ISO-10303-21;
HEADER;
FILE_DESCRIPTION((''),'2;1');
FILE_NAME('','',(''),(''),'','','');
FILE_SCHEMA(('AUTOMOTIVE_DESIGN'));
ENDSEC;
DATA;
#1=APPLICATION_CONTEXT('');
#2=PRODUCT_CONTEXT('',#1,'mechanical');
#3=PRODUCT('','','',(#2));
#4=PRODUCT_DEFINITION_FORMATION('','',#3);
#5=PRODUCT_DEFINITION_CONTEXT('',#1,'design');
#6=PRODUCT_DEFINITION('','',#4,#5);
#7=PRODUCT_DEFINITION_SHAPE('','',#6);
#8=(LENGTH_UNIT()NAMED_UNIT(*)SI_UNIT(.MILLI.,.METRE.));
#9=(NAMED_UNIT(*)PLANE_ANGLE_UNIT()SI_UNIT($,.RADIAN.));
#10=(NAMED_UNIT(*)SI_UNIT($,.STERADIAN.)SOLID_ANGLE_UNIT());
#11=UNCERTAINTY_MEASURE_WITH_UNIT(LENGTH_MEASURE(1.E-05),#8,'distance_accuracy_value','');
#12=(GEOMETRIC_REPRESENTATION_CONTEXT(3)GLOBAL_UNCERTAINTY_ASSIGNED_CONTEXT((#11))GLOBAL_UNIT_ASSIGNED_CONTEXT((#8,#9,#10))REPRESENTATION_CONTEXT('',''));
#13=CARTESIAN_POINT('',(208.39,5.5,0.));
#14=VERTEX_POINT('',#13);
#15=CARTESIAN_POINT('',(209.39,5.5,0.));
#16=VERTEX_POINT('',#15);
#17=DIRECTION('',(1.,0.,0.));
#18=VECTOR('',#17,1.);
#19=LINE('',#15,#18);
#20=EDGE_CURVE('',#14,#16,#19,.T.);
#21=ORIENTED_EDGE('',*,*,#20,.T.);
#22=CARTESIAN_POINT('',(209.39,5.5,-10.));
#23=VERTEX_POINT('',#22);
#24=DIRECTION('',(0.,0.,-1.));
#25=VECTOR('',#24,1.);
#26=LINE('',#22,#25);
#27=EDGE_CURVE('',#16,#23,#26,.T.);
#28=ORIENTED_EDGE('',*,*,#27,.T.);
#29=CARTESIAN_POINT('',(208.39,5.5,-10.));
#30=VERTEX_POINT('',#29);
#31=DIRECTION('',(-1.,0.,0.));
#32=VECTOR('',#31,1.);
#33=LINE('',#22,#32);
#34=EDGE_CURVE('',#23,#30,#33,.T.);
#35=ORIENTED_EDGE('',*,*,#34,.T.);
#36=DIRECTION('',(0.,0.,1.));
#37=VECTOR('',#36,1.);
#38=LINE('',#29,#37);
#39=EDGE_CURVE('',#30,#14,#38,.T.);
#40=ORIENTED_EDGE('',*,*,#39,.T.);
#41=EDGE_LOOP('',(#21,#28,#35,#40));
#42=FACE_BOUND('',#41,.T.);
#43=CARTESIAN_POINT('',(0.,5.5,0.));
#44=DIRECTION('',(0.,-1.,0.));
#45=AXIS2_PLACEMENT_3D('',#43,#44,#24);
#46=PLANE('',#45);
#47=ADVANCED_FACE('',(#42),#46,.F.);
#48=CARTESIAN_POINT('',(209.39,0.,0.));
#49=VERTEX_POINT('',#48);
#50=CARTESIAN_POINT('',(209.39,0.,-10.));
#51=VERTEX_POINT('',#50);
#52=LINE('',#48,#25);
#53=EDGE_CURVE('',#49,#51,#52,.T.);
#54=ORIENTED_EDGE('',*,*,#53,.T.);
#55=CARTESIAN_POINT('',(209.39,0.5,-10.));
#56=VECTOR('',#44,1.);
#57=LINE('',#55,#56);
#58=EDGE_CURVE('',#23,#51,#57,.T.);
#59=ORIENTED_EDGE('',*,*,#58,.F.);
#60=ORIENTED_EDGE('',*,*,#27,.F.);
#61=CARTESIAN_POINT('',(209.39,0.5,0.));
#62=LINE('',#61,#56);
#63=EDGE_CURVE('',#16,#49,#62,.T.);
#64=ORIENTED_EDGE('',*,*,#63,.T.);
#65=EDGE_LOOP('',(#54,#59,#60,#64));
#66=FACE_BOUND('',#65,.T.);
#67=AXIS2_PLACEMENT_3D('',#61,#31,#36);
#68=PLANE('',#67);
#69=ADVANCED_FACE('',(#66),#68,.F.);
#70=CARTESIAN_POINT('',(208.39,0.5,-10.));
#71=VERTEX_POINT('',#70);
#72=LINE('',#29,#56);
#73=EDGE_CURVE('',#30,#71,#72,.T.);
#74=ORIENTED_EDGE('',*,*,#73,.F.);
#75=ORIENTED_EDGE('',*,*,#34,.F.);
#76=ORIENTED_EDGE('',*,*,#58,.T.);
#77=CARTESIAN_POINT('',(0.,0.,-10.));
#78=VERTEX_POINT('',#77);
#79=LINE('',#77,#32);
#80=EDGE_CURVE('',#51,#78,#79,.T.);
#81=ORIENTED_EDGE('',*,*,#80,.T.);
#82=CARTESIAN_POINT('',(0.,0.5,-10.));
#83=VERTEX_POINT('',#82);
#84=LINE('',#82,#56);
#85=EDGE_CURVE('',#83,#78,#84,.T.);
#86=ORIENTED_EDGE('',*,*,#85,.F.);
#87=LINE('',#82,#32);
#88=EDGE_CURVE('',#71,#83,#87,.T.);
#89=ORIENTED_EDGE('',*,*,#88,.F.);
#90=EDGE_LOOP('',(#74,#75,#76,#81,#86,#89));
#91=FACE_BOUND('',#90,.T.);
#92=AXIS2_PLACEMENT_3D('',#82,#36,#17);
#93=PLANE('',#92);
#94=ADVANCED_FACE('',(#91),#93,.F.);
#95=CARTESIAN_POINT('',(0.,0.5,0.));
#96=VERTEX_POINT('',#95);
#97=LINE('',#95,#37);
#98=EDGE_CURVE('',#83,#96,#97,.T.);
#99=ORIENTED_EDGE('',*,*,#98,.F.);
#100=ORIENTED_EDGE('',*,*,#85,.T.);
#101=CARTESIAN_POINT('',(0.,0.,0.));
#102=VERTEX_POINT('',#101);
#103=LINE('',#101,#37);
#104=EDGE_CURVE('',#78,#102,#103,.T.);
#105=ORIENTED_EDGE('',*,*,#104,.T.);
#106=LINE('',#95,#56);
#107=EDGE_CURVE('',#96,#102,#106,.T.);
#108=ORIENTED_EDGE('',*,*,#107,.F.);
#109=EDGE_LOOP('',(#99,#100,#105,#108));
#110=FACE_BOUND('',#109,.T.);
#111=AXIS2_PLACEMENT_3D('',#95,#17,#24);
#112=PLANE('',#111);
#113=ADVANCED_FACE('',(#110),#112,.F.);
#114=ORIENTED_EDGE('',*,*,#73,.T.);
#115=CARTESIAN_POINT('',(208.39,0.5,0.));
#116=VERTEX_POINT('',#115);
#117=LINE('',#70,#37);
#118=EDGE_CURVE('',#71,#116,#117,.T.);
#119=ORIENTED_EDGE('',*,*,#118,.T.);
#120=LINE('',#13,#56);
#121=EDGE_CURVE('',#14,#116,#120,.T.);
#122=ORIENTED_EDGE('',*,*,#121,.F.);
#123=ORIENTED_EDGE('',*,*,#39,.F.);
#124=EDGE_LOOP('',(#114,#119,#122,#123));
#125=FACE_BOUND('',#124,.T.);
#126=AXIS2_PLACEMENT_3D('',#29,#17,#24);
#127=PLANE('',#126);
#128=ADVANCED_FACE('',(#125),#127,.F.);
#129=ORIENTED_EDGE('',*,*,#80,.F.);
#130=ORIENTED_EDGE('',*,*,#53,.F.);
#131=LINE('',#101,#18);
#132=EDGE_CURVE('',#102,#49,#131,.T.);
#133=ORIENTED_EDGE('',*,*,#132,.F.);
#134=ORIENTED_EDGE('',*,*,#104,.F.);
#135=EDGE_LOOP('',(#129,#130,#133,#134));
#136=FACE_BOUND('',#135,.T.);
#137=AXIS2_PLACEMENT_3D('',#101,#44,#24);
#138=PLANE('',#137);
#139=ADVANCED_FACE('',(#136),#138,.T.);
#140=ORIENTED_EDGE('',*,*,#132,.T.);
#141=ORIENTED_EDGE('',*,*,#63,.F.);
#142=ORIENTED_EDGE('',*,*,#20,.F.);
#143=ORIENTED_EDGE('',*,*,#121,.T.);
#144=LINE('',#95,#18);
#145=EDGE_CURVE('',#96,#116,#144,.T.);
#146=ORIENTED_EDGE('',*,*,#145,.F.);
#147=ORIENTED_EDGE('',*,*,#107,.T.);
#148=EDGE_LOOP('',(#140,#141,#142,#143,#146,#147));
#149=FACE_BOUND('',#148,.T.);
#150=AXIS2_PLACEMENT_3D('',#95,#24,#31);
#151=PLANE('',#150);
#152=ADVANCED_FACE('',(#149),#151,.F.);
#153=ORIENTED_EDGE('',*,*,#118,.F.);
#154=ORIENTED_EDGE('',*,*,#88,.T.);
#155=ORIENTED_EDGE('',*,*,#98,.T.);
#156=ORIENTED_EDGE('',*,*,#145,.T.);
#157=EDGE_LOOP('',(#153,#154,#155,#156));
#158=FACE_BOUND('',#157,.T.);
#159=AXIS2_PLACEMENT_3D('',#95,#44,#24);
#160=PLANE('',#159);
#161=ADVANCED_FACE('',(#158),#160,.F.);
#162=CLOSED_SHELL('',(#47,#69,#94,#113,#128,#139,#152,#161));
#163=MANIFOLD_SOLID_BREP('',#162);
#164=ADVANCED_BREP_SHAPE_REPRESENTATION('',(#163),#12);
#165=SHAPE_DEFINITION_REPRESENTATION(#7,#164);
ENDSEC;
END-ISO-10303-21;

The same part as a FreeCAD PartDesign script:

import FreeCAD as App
import Part
import Sketcher

V = App.Vector
Q = App.Units.Quantity


def add_polygon(sketch, points):
    """Adds a closed chain of lines whose ends are joined by coincident constraints."""
    first, n = sketch.GeometryCount, len(points)
    for a, b in zip(points, points[1:] + points[:1]):
        sketch.addGeometry(Part.LineSegment(App.Vector(*a, 0), App.Vector(*b, 0)), False)
    for i in range(n):
        sketch.addConstraint(Sketcher.Constraint("Coincident", first + i, 2, first + (i + 1) % n, 1))

doc = App.newDocument("Part")
params = doc.addObject("Spreadsheet::Sheet", "Params")
for row, (alias, value) in enumerate([
    ("sketch1_height", "10 mm"),
    ("sketch1_width", "209.39 mm"),
    ("pad1_length", "0.5 mm"),
    ("sketch2_width", "1 mm"),
    ("sketch2_height", "10 mm"),
    ("pad2_length", "5 mm"),
], start=1):
    params.set(f"A{row}", alias)
    params.set(f"B{row}", "=" + value)
    params.setAlias(f"B{row}", alias)

body = doc.addObject("PartDesign::Body", "Body")

sketch1 = body.newObject("Sketcher::SketchObject", "Sketch")
sketch1.AttachmentSupport = (doc.getObject("XZ_Plane"), [""])
sketch1.MapMode = "FlatFace"
add_polygon(sketch1, [(0, -10), (0, 0), (209, 0), (209, -10)])
sketch1.addConstraint(Sketcher.Constraint("Vertical", 0))
sketch1.addConstraint(Sketcher.Constraint("Horizontal", 1))
sketch1.addConstraint(Sketcher.Constraint("Vertical", 2))
sketch1.addConstraint(Sketcher.Constraint("Horizontal", 3))
sketch1.addConstraint(Sketcher.Constraint("Coincident", 0, 2, -1, 1))
sketch1.addConstraint(Sketcher.Constraint("DistanceY", 0, 1, 0, 2, Q("10 mm")))
sketch1.addConstraint(Sketcher.Constraint("DistanceX", 1, 1, 1, 2, Q("209.39 mm")))
sketch1.setExpression("Constraints[9]", "Params.sketch1_height")
sketch1.setExpression("Constraints[10]", "Params.sketch1_width")
pad1 = body.newObject("PartDesign::Pad", "Pad")
pad1.Profile = sketch1
pad1.setExpression("Length", "Params.pad1_length")
pad1.Reversed = True

sketch2 = body.newObject("Sketcher::SketchObject", "Sketch001")
sketch2.AttachmentSupport = (doc.getObject("XZ_Plane"), [""])
sketch2.MapMode = "FlatFace"
sketch2.AttachmentOffset = App.Placement(V(0, 0, -0.5), App.Rotation())
add_polygon(sketch2, [(208.4, -10), (208.4, 0), (209.4, 0), (209.4, -10)])
sketch2.addConstraint(Sketcher.Constraint("Vertical", 0))
sketch2.addConstraint(Sketcher.Constraint("Horizontal", 1))
sketch2.addConstraint(Sketcher.Constraint("Vertical", 2))
sketch2.addConstraint(Sketcher.Constraint("Horizontal", 3))
sketch2.addConstraint(Sketcher.Constraint("PointOnObject", 0, 2, -1))
sketch2.addConstraint(Sketcher.Constraint("DistanceX", 1, 1, 1, 2, Q("1 mm")))
sketch2.addConstraint(Sketcher.Constraint("DistanceY", 0, 1, 0, 2, Q("10 mm")))
sketch2.addConstraint(Sketcher.Constraint("DistanceX", -1, 1, 0, 2, Q("208.39 mm")))
sketch2.setExpression("Constraints[9]", "Params.sketch2_width")
sketch2.setExpression("Constraints[10]", "Params.sketch2_height")
pad2 = body.newObject("PartDesign::Pad", "Pad001")
pad2.Profile = sketch2
pad2.setExpression("Length", "Params.pad2_length")
pad2.Reversed = True

doc.recompute()
